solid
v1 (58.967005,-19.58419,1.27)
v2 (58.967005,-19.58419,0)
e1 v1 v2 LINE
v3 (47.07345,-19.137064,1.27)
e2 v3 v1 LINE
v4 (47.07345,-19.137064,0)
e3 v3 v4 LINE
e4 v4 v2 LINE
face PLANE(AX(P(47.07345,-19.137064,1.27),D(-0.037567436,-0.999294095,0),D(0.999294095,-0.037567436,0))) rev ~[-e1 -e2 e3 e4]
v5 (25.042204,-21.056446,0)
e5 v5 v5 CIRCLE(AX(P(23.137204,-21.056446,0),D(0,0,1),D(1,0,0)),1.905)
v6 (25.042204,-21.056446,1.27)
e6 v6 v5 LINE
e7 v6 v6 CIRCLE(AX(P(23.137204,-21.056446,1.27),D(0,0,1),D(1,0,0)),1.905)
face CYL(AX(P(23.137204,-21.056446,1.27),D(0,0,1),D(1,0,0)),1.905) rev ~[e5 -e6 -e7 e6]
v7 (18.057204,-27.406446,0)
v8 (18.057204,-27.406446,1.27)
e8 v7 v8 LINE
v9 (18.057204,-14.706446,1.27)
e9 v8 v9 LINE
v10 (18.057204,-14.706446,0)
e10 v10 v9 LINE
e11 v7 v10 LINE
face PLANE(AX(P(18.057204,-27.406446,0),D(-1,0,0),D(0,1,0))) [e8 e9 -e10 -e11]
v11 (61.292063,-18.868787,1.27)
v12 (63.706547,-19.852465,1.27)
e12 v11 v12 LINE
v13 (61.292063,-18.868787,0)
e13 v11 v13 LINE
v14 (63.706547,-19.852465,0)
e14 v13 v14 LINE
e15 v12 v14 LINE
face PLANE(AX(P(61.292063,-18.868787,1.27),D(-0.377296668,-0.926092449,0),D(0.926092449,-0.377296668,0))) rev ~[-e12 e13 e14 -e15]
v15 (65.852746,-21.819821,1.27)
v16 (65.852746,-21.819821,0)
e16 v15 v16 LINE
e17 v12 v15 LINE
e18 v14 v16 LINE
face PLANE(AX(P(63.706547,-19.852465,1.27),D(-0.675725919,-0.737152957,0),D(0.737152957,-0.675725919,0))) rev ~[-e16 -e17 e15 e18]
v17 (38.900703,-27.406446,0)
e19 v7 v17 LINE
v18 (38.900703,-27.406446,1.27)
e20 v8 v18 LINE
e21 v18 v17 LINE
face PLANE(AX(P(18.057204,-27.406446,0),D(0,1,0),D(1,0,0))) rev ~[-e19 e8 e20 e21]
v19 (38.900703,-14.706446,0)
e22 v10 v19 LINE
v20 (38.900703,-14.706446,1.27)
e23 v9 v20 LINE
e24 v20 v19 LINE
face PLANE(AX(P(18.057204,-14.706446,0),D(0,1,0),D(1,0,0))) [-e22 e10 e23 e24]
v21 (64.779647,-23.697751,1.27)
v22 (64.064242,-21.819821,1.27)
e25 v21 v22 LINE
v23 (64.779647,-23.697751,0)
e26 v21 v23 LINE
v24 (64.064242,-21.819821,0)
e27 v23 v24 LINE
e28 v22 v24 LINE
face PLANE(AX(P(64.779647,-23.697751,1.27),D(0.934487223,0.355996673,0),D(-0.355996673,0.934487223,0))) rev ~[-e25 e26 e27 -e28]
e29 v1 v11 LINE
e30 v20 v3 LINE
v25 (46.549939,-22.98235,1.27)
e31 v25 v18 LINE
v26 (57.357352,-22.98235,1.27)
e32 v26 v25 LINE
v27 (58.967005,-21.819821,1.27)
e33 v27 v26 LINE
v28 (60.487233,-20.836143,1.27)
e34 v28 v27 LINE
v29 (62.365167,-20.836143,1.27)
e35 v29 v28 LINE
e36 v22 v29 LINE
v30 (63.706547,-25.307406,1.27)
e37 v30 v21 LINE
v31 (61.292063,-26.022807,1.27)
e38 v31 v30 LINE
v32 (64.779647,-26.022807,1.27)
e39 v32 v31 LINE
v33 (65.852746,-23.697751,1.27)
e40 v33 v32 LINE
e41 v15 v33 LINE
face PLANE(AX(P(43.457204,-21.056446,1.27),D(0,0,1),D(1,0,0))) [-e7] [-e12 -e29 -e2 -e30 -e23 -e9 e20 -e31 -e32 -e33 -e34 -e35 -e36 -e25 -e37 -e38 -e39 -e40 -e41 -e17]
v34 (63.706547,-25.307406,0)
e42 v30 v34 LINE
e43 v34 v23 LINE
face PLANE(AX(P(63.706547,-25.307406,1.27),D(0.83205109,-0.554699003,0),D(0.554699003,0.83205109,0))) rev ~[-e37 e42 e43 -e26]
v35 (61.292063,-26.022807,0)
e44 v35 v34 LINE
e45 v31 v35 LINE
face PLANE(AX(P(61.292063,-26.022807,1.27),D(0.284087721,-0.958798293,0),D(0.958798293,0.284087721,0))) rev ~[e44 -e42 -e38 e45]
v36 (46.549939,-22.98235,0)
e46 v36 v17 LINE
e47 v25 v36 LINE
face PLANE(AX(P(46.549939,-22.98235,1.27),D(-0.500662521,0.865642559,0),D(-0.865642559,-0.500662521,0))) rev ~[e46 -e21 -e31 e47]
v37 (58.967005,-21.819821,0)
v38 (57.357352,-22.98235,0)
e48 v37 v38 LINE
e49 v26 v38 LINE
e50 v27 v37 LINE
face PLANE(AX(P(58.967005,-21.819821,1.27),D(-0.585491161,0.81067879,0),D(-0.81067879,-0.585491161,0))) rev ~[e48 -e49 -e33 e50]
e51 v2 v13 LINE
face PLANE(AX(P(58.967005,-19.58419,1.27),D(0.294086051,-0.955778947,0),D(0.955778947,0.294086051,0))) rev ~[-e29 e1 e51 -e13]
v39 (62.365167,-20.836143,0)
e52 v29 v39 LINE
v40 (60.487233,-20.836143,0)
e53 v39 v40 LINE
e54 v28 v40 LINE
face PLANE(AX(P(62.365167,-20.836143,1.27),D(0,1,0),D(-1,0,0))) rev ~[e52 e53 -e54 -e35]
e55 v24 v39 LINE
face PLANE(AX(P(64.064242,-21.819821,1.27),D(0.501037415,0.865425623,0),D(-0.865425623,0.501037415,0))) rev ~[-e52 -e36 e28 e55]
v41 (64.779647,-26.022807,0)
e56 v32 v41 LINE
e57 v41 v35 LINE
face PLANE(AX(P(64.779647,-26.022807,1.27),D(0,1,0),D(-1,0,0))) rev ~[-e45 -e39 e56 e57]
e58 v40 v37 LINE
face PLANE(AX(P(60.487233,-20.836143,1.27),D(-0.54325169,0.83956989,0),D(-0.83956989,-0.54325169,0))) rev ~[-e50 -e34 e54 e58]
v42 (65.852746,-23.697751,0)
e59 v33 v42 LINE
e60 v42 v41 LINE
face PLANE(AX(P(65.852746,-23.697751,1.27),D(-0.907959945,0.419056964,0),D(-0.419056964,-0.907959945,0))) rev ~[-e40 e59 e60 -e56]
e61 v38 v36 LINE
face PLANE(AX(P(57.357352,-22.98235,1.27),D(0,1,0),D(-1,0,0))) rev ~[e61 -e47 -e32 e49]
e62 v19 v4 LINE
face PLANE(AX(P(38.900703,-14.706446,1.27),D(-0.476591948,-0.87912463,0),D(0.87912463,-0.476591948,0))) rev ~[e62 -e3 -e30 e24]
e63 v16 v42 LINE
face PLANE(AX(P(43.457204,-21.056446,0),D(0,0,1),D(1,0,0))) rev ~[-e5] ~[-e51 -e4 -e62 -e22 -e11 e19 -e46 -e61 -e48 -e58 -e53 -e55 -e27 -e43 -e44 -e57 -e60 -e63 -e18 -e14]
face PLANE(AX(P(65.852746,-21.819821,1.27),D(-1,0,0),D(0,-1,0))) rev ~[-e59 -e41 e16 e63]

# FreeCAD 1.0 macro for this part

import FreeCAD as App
import Part
import Sketcher

V = App.Vector
Q = App.Units.Quantity

doc = App.newDocument("Part")
body = doc.addObject("PartDesign::Body", "Body")

sketch1 = doc.addObject("Sketcher::SketchObject", "Sketch")
body.addObject(sketch1)
sketch1.AttachmentSupport = (doc.XY_Plane, [""])
sketch1.MapMode = "FlatFace"
sketch1.addGeometry([
    Part.LineSegment(V(18, -15, 0), V(18, -27, 0)),
    Part.LineSegment(V(18, -27, 0), V(69, -27, 0)),
    Part.LineSegment(V(69, -27, 0), V(69, -15, 0)),
    Part.LineSegment(V(69, -15, 0), V(18, -15, 0)),
], False)
sketch1.addConstraint([
    Sketcher.Constraint("Coincident", 0, 2, 1, 1),
    Sketcher.Constraint("Coincident", 1, 2, 2, 1),
    Sketcher.Constraint("Coincident", 2, 2, 3, 1),
    Sketcher.Constraint("Coincident", 3, 2, 0, 1),
    Sketcher.Constraint("Vertical", 0),
    Sketcher.Constraint("Horizontal", 1),
    Sketcher.Constraint("Vertical", 2),
    Sketcher.Constraint("Horizontal", 3),
    Sketcher.Constraint("DistanceX", 1, 1, 1, 2, Q("2 in")),
    Sketcher.Constraint("DistanceY", 0, 2, 0, 1, Q("0.5 in")),
    Sketcher.Constraint("DistanceX", -1, 1, 0, 2, Q("18.057204 mm")),
    Sketcher.Constraint("DistanceY", 0, 2, -1, 1, Q("27.406446 mm")),
])
pad1 = doc.addObject("PartDesign::Pad", "Pad")
body.addObject(pad1)
pad1.Profile = sketch1
pad1.Length = Q("0.05 in")

sketch2 = doc.addObject("Sketcher::SketchObject", "Sketch001")
body.addObject(sketch2)
sketch2.AttachmentSupport = (doc.XY_Plane, [""])
sketch2.MapMode = "FlatFace"
sketch2.AttachmentOffset = App.Placement(V(0, 0, 0.05 * 25.4), App.Rotation())
sketch2.addGeometry(Part.Circle(V(23.1, -21.1, 0), V(0, 0, 1), 1.9), False)
sketch2.addConstraint([
    Sketcher.Constraint("Diameter", 0, Q("0.15 in")),
    Sketcher.Constraint("DistanceX", -1, 1, 0, 3, Q("23.137204 mm")),
    Sketcher.Constraint("DistanceY", 0, 3, -1, 1, Q("21.056446 mm")),
])
pocket1 = doc.addObject("PartDesign::Pocket", "Pocket")
body.addObject(pocket1)
pocket1.Profile = sketch2
pocket1.Length = Q("1 in")

sketch3 = doc.addObject("Sketcher::SketchObject", "Sketch002")
body.addObject(sketch3)
sketch3.AttachmentSupport = (doc.XY_Plane, [""])
sketch3.MapMode = "FlatFace"
sketch3.AttachmentOffset = App.Placement(V(0, 0, 0.05 * 25.4), App.Rotation())
sketch3.addGeometry([
    Part.LineSegment(V(59, -21.8, 0), V(57.4, -23, 0)),
    Part.LineSegment(V(57.4, -23, 0), V(46.5, -23, 0)),
    Part.LineSegment(V(46.5, -23, 0), V(38.9, -27.4, 0)),
    Part.LineSegment(V(38.9, -27.4, 0), V(68.9, -27.4, 0)),
    Part.LineSegment(V(68.9, -27.4, 0), V(68.9, -14.7, 0)),
    Part.LineSegment(V(68.9, -14.7, 0), V(38.9, -14.7, 0)),
    Part.LineSegment(V(38.9, -14.7, 0), V(47.1, -19.1, 0)),
    Part.LineSegment(V(47.1, -19.1, 0), V(59, -19.6, 0)),
    Part.LineSegment(V(59, -19.6, 0), V(61.3, -18.9, 0)),
    Part.LineSegment(V(61.3, -18.9, 0), V(63.7, -19.9, 0)),
    Part.LineSegment(V(63.7, -19.9, 0), V(65.9, -21.8, 0)),
    Part.LineSegment(V(65.9, -21.8, 0), V(65.9, -23.7, 0)),
    Part.LineSegment(V(65.9, -23.7, 0), V(64.8, -26, 0)),
    Part.LineSegment(V(64.8, -26, 0), V(61.3, -26, 0)),
    Part.LineSegment(V(61.3, -26, 0), V(63.7, -25.3, 0)),
    Part.LineSegment(V(63.7, -25.3, 0), V(64.8, -23.7, 0)),
    Part.LineSegment(V(64.8, -23.7, 0), V(64.1, -21.8, 0)),
    Part.LineSegment(V(64.1, -21.8, 0), V(62.4, -20.8, 0)),
    Part.LineSegment(V(62.4, -20.8, 0), V(60.5, -20.8, 0)),
    Part.LineSegment(V(60.5, -20.8, 0), V(59, -21.8, 0)),
], False)
sketch3.addConstraint([
    Sketcher.Constraint("Coincident", 0, 2, 1, 1),
    Sketcher.Constraint("Coincident", 1, 2, 2, 1),
    Sketcher.Constraint("Coincident", 2, 2, 3, 1),
    Sketcher.Constraint("Coincident", 3, 2, 4, 1),
    Sketcher.Constraint("Coincident", 4, 2, 5, 1),
    Sketcher.Constraint("Coincident", 5, 2, 6, 1),
    Sketcher.Constraint("Coincident", 6, 2, 7, 1),
    Sketcher.Constraint("Coincident", 7, 2, 8, 1),
    Sketcher.Constraint("Coincident", 8, 2, 9, 1),
    Sketcher.Constraint("Coincident", 9, 2, 10, 1),
    Sketcher.Constraint("Coincident", 10, 2, 11, 1),
    Sketcher.Constraint("Coincident", 11, 2, 12, 1),
    Sketcher.Constraint("Coincident", 12, 2, 13, 1),
    Sketcher.Constraint("Coincident", 13, 2, 14, 1),
    Sketcher.Constraint("Coincident", 14, 2, 15, 1),
    Sketcher.Constraint("Coincident", 15, 2, 16, 1),
    Sketcher.Constraint("Coincident", 16, 2, 17, 1),
    Sketcher.Constraint("Coincident", 17, 2, 18, 1),
    Sketcher.Constraint("Coincident", 18, 2, 19, 1),
    Sketcher.Constraint("Coincident", 19, 2, 0, 1),
    Sketcher.Constraint("Horizontal", 1),
    Sketcher.Constraint("Horizontal", 3),
    Sketcher.Constraint("Vertical", 4),
    Sketcher.Constraint("Horizontal", 5),
    Sketcher.Constraint("Vertical", 11),
    Sketcher.Constraint("Horizontal", 13),
    Sketcher.Constraint("Horizontal", 18),
    Sketcher.Constraint("Horizontal", 11, 2, 15, 2),
    Sketcher.Constraint("Horizontal", 10, 2, 16, 2),
    Sketcher.Constraint("Horizontal", 16, 2, 19, 2),
    Sketcher.Constraint("Vertical", 2, 2, 5, 2),
    Sketcher.Constraint("Vertical", 8, 2, 13, 2),
    Sketcher.Constraint("Vertical", 9, 2, 14, 2),
    Sketcher.Constraint("Vertical", 12, 2, 15, 2),
    Sketcher.Constraint("Vertical", 7, 2, 19, 2),
    Sketcher.Constraint("DistanceY", 4, 1, 4, 2, Q("0.5 in")),
    Sketcher.Constraint("Angle", 15, Q("56.310015 deg")),
    Sketcher.Constraint("DistanceX", 3, 1, 3, 2, Q("29.956501 mm")),
    Sketcher.Constraint("DistanceY", 11, 2, 11, 1, Q("1.87793 mm")),
    Sketcher.Constraint("DistanceX", 6, 2, 0, 2, Q("10.283902 mm")),
    Sketcher.Constraint("DistanceX", 7, 2, 4, 2, Q("9.890199 mm")),
    Sketcher.Constraint("DistanceX", 9, 2, 10, 2, Q("2.146199 mm")),
    Sketcher.Constraint("DistanceX", 12, 2, 11, 2, Q("1.073099 mm")),
    Sketcher.Constraint("DistanceY", 12, 2, 14, 2, Q("0.715401 mm")),
    Sketcher.Constraint("Distance", 6, Q("9.29646 mm")),
    Sketcher.Constraint("Distance", 8, Q("2.432632 mm")),
    Sketcher.Constraint("Distance", 10, Q("2.91147 mm")),
    Sketcher.Constraint("Distance", 14, Q("2.51824 mm")),
    Sketcher.Constraint("DistanceX", 1, 2, 1, 1, Q("10.807413 mm")),
    Sketcher.Constraint("DistanceX", 18, 2, 18, 1, Q("1.877934 mm")),
    Sketcher.Constraint("DistanceY", 0, 2, -1, 1, Q("22.98235 mm")),
    Sketcher.Constraint("DistanceX", -1, 1, 1, 2, Q("46.549939 mm")),
    Sketcher.Constraint("DistanceY", 7, 2, -1, 1, Q("19.58419 mm")),
    Sketcher.Constraint("DistanceY", 10, 2, -1, 1, Q("21.819821 mm")),
    Sketcher.Constraint("DistanceX", -1, 1, 16, 2, Q("64.064242 mm")),
    Sketcher.Constraint("DistanceX", 2, 2, 0, 2, Q("18.456649 mm")),
    Sketcher.Constraint("DistanceX", 0, 2, 8, 2, Q("3.934711 mm")),
    Sketcher.Constraint("DistanceY", 8, 2, 4, 2, Q("4.162341 mm")),
    Sketcher.Constraint("DistanceX", 17, 2, 9, 2, Q("1.34138 mm")),
    Sketcher.Constraint("DistanceY", 17, 2, 9, 2, Q("0.983678 mm")),
])
pocket2 = doc.addObject("PartDesign::Pocket", "Pocket001")
body.addObject(pocket2)
pocket2.Profile = sketch3
pocket2.Length = Q("1 in")

doc.recompute()
